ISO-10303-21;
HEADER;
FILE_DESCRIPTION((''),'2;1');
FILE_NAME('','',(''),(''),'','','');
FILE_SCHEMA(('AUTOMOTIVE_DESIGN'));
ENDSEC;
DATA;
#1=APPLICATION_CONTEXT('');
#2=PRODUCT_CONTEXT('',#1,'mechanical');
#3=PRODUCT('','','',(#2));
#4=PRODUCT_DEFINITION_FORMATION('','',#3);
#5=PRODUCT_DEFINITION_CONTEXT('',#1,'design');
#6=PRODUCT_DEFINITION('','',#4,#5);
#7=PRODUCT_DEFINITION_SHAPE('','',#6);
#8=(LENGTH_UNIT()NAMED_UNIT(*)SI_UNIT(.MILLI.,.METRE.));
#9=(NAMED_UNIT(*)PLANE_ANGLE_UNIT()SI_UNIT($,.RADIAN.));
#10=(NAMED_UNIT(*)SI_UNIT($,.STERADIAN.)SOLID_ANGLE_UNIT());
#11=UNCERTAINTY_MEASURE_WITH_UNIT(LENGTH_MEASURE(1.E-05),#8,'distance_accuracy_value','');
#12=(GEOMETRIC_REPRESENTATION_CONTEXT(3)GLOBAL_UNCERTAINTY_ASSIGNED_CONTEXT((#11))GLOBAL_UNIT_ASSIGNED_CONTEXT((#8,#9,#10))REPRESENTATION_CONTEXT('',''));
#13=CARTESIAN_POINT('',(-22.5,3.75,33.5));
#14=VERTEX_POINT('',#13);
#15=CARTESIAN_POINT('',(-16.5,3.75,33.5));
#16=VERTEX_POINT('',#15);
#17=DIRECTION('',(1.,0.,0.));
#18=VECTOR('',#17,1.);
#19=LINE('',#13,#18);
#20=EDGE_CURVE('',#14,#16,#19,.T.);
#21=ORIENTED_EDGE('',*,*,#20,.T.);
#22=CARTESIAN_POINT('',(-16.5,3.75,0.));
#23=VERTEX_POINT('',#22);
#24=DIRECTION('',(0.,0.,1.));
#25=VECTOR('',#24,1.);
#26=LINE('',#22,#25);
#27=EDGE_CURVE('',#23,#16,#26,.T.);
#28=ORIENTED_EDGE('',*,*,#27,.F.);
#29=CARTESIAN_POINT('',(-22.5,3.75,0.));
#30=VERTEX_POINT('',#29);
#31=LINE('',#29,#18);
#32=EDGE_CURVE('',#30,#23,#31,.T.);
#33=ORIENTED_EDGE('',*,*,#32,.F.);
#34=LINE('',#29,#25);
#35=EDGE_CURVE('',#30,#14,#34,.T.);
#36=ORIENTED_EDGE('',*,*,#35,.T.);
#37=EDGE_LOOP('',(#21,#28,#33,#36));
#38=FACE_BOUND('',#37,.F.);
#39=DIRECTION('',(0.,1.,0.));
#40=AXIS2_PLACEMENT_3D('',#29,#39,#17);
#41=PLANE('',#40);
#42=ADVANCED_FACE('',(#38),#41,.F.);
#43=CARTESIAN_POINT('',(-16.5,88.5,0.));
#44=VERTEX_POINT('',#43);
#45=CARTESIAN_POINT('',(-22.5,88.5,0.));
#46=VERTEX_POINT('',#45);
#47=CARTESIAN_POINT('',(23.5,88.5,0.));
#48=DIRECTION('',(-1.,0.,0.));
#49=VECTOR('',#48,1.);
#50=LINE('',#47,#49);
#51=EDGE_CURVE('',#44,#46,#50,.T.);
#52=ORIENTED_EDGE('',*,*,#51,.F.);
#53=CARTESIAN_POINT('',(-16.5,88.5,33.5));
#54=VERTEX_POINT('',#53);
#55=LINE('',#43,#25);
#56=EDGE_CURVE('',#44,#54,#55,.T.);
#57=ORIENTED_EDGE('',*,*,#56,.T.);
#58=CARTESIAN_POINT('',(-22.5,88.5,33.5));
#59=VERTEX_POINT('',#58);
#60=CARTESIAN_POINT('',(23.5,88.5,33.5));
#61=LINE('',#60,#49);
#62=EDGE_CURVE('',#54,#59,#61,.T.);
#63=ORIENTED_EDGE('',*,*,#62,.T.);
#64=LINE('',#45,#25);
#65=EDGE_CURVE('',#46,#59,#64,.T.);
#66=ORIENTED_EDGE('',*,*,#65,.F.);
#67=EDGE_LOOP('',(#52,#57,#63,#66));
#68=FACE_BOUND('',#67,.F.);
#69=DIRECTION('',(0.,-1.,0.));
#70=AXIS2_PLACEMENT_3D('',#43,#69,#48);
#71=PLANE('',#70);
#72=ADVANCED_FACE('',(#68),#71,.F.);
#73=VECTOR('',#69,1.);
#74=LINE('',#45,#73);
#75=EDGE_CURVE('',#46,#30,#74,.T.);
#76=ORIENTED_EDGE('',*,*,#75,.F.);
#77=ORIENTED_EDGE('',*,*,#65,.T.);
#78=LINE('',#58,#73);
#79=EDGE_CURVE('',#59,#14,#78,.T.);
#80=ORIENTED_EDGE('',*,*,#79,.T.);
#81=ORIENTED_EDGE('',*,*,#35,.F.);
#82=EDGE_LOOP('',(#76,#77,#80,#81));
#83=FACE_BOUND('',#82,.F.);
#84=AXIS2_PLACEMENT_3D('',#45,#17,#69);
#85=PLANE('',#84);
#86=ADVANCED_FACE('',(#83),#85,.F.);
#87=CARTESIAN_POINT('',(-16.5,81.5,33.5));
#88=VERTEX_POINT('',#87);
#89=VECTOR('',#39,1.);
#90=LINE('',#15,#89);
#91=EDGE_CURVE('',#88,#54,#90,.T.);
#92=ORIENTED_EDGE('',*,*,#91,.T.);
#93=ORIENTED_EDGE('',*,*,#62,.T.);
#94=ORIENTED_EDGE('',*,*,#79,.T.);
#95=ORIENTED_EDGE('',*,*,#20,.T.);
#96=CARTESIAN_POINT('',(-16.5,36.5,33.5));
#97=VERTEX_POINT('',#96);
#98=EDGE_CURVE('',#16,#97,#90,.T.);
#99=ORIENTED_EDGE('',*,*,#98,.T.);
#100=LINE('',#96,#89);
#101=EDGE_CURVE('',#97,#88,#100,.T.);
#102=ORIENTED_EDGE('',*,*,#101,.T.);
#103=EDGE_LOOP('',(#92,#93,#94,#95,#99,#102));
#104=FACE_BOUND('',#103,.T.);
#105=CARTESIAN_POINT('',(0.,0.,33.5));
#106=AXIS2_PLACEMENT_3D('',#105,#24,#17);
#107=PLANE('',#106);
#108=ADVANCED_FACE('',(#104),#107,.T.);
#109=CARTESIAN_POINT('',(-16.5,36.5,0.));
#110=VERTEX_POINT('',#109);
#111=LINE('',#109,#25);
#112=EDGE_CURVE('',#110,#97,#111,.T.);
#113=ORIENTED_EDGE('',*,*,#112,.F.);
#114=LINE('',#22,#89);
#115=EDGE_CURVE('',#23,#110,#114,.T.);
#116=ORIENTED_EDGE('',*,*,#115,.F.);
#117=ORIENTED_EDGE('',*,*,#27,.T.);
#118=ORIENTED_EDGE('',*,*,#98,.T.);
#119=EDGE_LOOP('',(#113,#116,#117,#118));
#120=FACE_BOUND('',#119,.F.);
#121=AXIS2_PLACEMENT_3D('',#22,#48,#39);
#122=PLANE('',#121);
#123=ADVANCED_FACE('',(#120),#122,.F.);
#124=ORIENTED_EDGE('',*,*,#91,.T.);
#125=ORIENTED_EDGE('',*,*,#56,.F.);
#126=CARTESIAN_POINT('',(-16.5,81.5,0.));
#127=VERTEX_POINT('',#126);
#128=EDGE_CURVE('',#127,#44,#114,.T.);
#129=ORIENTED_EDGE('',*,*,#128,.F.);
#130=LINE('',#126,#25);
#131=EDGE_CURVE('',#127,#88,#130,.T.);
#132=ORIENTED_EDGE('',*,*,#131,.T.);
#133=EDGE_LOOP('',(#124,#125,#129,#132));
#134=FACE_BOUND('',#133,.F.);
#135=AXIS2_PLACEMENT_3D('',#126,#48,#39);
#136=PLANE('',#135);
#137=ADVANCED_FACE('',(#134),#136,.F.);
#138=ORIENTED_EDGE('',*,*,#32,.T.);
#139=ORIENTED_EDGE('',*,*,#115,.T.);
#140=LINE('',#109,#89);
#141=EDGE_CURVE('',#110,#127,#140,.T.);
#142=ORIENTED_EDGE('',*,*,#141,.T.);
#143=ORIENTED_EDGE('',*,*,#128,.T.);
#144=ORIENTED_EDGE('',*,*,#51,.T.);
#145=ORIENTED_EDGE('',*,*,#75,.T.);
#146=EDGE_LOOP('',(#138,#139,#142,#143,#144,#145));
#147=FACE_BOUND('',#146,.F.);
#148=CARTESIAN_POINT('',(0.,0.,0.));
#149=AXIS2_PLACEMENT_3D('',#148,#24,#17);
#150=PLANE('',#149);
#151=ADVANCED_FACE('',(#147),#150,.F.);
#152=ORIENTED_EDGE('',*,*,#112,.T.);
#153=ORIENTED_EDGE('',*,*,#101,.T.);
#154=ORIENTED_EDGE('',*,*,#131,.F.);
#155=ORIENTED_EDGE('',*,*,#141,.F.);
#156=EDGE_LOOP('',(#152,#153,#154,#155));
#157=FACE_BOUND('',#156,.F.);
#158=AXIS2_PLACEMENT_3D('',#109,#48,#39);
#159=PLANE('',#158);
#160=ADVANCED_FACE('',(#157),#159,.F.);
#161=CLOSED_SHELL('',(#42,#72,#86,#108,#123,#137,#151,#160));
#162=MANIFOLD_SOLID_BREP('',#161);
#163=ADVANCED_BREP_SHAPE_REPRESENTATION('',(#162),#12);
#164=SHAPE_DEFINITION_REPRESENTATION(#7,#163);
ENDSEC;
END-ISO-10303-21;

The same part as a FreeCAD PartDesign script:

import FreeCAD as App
import Part
import Sketcher

V = App.Vector

doc = App.newDocument("Part")
body = doc.addObject("PartDesign::Body", "Body")

sketch1 = doc.addObject("Sketcher::SketchObject", "Sketch")
body.addObject(sketch1)
sketch1.AttachmentSupport = (doc.XY_Plane, [""])
sketch1.MapMode = "FlatFace"
sketch1.addGeometry(Part.LineSegment(V(-16.5, 3.75, 0), V(-16.5, 88.5, 0)), False)
sketch1.addGeometry(Part.LineSegment(V(-16.5, 88.5, 0), V(-22.5, 88.5, 0)), False)
sketch1.addGeometry(Part.LineSegment(V(-22.5, 88.5, 0), V(-22.5, 3.75, 0)), False)
sketch1.addGeometry(Part.LineSegment(V(-22.5, 3.75, 0), V(-16.5, 3.75, 0)), False)
sketch1.addConstraint(Sketcher.Constraint("Coincident", 0, 2, 1, 1))
sketch1.addConstraint(Sketcher.Constraint("Coincident", 1, 2, 2, 1))
sketch1.addConstraint(Sketcher.Constraint("Coincident", 2, 2, 3, 1))
sketch1.addConstraint(Sketcher.Constraint("Coincident", 3, 2, 0, 1))
sketch1.addConstraint(Sketcher.Constraint("Vertical", 0))
sketch1.addConstraint(Sketcher.Constraint("Horizontal", 1))
sketch1.addConstraint(Sketcher.Constraint("Vertical", 2))
sketch1.addConstraint(Sketcher.Constraint("Horizontal", 3))
sketch1.addConstraint(Sketcher.Constraint("DistanceX", 1, 2, 1, 1, 6.0))
sketch1.addConstraint(Sketcher.Constraint("DistanceY", 0, 1, 0, 2, 84.75))
sketch1.addConstraint(Sketcher.Constraint("DistanceX", 0, 2, -1, 1, 16.5))
sketch1.addConstraint(Sketcher.Constraint("DistanceY", -1, 1, 0, 2, 88.5))
pad1 = doc.addObject("PartDesign::Pad", "Pad")
body.addObject(pad1)
pad1.Profile = sketch1
pad1.Length = 33.5

doc.recompute()
